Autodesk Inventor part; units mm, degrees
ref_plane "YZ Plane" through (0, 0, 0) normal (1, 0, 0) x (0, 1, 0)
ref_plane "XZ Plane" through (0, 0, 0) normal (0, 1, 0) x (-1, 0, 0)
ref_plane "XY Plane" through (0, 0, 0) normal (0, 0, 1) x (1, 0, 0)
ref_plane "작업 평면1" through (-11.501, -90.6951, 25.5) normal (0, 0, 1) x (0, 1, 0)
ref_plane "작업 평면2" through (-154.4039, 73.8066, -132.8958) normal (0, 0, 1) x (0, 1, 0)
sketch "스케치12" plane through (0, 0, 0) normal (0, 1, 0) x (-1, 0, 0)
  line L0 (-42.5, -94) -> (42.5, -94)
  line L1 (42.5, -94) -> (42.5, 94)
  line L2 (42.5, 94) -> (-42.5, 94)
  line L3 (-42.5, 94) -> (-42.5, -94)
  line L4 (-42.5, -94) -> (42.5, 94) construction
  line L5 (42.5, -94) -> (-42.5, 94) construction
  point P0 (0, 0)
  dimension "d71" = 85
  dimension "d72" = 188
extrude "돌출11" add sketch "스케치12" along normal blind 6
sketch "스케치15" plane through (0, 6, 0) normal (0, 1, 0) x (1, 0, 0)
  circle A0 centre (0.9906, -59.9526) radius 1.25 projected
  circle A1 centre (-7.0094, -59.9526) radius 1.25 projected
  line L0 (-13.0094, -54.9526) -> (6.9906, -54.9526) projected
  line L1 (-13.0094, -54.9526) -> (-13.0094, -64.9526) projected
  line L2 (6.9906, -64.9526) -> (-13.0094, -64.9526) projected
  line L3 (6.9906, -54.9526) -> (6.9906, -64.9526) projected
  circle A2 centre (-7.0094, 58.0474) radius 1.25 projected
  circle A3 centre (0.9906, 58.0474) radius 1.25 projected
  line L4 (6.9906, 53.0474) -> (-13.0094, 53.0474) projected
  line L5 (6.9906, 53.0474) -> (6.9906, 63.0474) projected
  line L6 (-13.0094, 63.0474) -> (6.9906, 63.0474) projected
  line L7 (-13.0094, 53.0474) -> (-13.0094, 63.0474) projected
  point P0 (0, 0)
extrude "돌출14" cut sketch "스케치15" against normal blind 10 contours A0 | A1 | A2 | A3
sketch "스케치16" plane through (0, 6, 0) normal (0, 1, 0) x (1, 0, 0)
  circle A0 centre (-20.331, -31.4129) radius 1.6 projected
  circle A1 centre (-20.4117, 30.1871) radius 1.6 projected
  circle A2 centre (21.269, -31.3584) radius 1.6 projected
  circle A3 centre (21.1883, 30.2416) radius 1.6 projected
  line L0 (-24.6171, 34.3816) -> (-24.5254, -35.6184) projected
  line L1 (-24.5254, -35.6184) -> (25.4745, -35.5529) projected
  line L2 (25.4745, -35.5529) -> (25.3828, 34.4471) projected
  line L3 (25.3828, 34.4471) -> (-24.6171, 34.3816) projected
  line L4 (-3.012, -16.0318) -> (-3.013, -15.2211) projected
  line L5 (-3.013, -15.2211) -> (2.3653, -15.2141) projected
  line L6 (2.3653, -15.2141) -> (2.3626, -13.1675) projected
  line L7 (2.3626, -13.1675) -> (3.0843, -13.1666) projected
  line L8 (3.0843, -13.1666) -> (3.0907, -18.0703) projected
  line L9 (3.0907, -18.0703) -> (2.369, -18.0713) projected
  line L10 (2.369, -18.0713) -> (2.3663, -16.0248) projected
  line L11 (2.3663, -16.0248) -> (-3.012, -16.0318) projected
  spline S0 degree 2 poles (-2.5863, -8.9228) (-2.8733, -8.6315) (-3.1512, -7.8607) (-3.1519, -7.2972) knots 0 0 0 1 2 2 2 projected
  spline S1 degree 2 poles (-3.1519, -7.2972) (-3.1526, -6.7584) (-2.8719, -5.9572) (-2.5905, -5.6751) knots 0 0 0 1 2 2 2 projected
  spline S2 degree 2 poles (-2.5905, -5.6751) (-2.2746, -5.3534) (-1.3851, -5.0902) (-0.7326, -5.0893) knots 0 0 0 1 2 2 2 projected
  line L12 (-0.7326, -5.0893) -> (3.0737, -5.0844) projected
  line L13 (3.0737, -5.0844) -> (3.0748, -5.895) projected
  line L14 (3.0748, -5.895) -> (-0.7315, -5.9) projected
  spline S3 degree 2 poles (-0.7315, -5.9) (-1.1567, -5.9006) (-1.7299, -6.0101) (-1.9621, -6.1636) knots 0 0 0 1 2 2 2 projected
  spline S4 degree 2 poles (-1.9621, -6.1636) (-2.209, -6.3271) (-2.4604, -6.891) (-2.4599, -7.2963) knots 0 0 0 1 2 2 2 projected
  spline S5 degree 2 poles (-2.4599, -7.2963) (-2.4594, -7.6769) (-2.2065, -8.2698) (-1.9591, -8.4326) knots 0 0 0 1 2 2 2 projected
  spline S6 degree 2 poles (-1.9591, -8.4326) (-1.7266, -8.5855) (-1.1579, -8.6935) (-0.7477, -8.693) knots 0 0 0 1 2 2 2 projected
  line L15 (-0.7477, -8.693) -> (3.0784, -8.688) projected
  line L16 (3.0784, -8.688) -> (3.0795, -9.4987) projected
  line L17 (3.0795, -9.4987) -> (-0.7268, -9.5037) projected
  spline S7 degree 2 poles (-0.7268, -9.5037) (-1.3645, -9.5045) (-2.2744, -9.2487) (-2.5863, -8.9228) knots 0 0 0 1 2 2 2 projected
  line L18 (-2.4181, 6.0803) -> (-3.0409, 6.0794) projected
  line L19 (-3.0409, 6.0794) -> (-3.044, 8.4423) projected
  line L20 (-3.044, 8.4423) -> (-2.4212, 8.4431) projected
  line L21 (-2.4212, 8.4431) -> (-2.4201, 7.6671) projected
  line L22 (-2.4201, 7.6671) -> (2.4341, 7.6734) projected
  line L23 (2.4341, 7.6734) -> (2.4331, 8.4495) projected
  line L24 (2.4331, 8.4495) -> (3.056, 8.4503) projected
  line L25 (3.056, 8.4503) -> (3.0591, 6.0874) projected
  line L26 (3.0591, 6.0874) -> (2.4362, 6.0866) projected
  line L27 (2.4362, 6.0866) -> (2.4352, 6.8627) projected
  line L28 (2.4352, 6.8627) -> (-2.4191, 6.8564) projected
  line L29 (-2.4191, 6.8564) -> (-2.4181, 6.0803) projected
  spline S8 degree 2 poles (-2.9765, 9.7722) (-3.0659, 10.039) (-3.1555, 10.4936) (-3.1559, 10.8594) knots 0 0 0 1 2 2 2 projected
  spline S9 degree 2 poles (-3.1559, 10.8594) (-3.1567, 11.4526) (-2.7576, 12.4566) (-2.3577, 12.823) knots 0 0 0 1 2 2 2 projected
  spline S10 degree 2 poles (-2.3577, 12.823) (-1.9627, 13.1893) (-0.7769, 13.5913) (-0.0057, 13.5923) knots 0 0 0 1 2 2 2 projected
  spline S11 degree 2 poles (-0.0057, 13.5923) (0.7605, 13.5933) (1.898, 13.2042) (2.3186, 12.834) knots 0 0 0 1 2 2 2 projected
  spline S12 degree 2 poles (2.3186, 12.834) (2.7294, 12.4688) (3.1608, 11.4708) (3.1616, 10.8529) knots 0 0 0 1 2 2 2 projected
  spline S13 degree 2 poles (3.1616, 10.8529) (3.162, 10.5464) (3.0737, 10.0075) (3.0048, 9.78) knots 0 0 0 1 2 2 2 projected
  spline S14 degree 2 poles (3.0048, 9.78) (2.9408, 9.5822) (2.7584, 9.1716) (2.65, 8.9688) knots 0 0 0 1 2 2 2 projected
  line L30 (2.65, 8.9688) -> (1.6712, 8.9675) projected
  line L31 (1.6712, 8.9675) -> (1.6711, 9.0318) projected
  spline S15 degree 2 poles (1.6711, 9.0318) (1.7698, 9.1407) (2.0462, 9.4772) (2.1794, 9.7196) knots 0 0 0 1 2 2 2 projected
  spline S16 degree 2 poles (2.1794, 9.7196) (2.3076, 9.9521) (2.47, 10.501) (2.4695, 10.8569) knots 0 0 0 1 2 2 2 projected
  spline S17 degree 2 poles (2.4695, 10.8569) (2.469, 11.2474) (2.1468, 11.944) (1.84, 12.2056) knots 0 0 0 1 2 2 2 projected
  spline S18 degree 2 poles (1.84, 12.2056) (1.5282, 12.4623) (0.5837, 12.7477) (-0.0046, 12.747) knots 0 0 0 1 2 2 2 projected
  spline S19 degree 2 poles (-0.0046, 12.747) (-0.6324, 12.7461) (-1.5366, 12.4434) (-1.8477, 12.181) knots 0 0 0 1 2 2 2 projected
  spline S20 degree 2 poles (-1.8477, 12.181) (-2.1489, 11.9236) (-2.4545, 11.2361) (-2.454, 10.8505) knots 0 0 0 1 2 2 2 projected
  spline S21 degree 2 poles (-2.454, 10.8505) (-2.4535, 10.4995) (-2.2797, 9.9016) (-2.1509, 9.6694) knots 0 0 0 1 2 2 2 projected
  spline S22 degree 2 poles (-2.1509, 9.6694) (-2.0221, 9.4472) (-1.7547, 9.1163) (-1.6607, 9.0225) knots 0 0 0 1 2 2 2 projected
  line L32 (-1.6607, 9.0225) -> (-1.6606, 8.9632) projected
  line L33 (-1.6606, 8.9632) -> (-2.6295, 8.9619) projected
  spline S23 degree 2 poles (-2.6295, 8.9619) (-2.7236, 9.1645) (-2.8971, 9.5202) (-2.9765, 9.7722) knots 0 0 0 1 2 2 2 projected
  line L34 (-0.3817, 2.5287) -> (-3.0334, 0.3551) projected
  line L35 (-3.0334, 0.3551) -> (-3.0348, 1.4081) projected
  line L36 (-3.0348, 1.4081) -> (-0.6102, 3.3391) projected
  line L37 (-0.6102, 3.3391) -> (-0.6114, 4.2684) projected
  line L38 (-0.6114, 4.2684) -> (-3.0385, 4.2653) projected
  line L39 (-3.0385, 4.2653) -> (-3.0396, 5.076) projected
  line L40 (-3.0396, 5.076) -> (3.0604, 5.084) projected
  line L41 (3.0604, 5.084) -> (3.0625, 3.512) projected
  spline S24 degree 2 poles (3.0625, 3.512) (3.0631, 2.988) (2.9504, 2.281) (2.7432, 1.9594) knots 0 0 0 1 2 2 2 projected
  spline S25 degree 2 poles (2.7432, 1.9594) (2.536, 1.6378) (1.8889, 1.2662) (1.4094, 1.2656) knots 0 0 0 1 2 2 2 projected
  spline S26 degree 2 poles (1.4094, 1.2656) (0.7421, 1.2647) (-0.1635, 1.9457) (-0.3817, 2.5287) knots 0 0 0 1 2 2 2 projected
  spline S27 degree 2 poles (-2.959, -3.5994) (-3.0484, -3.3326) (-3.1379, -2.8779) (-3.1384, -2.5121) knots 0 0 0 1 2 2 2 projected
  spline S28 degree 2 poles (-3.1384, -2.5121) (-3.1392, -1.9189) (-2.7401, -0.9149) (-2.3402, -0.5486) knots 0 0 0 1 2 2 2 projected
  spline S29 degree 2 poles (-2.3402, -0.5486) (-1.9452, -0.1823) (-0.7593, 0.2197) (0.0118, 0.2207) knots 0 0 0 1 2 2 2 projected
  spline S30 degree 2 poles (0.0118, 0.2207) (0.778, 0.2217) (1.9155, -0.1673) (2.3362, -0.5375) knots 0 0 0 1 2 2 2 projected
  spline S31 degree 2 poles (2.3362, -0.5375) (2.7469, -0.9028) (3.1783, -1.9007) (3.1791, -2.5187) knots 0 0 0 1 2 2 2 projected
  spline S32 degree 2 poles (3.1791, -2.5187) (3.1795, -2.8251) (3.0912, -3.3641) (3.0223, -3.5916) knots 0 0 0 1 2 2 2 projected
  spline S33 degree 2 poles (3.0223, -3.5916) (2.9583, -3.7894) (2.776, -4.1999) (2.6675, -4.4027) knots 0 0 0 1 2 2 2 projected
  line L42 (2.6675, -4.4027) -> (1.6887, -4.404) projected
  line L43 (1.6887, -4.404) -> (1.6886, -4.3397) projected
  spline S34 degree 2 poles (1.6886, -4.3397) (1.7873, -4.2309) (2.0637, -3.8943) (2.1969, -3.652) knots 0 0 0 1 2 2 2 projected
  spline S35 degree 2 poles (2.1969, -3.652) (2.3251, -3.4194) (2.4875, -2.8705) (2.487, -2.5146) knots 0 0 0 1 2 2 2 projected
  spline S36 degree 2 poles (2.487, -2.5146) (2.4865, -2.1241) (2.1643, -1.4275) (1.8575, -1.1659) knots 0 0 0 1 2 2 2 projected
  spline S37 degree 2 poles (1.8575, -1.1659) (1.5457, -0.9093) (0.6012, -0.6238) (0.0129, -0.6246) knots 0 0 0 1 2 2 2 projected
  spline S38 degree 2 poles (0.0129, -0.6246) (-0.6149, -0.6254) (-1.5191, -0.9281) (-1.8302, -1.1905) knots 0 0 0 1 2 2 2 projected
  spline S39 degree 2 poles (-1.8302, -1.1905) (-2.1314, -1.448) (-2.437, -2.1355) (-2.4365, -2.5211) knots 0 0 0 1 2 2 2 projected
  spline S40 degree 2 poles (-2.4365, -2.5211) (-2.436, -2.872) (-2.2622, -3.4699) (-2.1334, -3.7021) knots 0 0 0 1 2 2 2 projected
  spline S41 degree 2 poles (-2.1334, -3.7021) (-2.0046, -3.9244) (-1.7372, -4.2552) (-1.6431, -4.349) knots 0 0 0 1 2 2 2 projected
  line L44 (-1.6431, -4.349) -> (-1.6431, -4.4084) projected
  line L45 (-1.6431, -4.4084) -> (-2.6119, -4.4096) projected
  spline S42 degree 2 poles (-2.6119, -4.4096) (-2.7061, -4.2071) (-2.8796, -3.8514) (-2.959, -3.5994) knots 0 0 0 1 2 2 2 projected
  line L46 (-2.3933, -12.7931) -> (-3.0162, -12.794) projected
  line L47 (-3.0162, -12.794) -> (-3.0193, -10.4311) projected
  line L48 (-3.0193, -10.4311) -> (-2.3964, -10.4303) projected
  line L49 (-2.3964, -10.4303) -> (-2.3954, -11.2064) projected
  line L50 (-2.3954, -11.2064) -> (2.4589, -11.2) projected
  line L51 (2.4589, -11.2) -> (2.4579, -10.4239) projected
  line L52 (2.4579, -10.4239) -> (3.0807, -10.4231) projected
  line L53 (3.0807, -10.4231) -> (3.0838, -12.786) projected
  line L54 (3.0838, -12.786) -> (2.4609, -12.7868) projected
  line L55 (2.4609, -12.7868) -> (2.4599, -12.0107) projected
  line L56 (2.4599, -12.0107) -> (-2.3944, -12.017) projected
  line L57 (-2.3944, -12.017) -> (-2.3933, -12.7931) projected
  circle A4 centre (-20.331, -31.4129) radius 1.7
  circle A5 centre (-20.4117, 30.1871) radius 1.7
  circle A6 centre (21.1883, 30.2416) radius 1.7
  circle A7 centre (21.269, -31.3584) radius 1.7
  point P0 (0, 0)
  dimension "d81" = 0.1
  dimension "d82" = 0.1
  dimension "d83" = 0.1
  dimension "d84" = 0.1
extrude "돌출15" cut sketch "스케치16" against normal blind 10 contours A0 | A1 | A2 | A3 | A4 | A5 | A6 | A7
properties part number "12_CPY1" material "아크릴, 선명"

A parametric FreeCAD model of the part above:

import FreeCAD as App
import Part
import Sketcher
from FreeCAD import Vector

doc = App.newDocument("Part")
params = doc.addObject("Spreadsheet::Sheet", "Params")
for row, (alias, value) in enumerate([
    ("sketch1_width", "85 mm"),
    ("sketch1_height", "188 mm"),
    ("pad1_length", "6 mm"),
    ("sketch2_diameter", "2.5 mm"),
    ("pocket1_length", "10 mm"),
    ("sketch3_diameter", "3.4 mm"),
    ("pocket2_length", "10 mm"),
], start=1):
    params.set(f"A{row}", alias)
    params.set(f"B{row}", "=" + value)
    params.setAlias(f"B{row}", alias)

body = doc.addObject("PartDesign::Body", "Body")

sketch1 = doc.addObject("Sketcher::SketchObject", "Sketch")
body.addObject(sketch1)
sketch1.AttachmentSupport = (doc.XZ_Plane, [""])
sketch1.MapMode = "FlatFace"
sketch1.addGeometry([
    Part.LineSegment(Vector(42, 94, 0), Vector(42, -94, 0)),
    Part.LineSegment(Vector(42, -94, 0), Vector(-42, -94, 0)),
    Part.LineSegment(Vector(-42, -94, 0), Vector(-42, 94, 0)),
    Part.LineSegment(Vector(-42, 94, 0), Vector(42, 94, 0)),
], False)
sketch1.addConstraint([
    Sketcher.Constraint("Coincident", 0, 2, 1, 1),
    Sketcher.Constraint("Coincident", 1, 2, 2, 1),
    Sketcher.Constraint("Coincident", 2, 2, 3, 1),
    Sketcher.Constraint("Coincident", 3, 2, 0, 1),
    Sketcher.Constraint("Vertical", 0),
    Sketcher.Constraint("Horizontal", 1),
    Sketcher.Constraint("Vertical", 2),
    Sketcher.Constraint("Horizontal", 3),
    Sketcher.Constraint("Symmetric", 0, 2, 2, 2, -1, 1),
    Sketcher.Constraint("DistanceX", 1, 2, 1, 1, 85.0),
    Sketcher.Constraint("DistanceY", 0, 2, 0, 1, 188.0),
])
sketch1.setExpression("Constraints[9]", "Params.sketch1_width")
sketch1.setExpression("Constraints[10]", "Params.sketch1_height")
pad1 = doc.addObject("PartDesign::Pad", "Pad")
body.addObject(pad1)
pad1.Profile = sketch1
pad1.setExpression("Length", "Params.pad1_length")
pad1.Reversed = True

sketch2 = doc.addObject("Sketcher::SketchObject", "Sketch001")
body.addObject(sketch2)
sketch2.AttachmentSupport = (doc.XZ_Plane, [""])
sketch2.MapMode = "FlatFace"
sketch2.AttachmentOffset = App.Placement(Vector(0, 0, -6), App.Rotation())
sketch2.addGeometry([
    Part.Circle(Vector(1, 60, 0), Vector(0, 0, 1), 1.2),
    Part.Circle(Vector(-7, 60, 0), Vector(0, 0, 1), 1.2),
    Part.Circle(Vector(-7, -58, 0), Vector(0, 0, 1), 1.2),
    Part.Circle(Vector(1, -58, 0), Vector(0, 0, 1), 1.2),
], False)
sketch2.addConstraint([
    Sketcher.Constraint("Equal", 0, 1),
    Sketcher.Constraint("Equal", 1, 2),
    Sketcher.Constraint("Equal", 2, 3),
    Sketcher.Constraint("Horizontal", 0, 3, 1, 3),
    Sketcher.Constraint("Horizontal", 2, 3, 3, 3),
    Sketcher.Constraint("Vertical", 1, 3, 2, 3),
    Sketcher.Constraint("Vertical", 0, 3, 3, 3),
    Sketcher.Constraint("Diameter", 0, 2.5),
    Sketcher.Constraint("DistanceX", 1, 3, 0, 3, 8.0),
    Sketcher.Constraint("DistanceY", 2, 3, 1, 3, 118.0),
    Sketcher.Constraint("DistanceX", -1, 1, 0, 3, 0.9906),
    Sketcher.Constraint("DistanceY", -1, 1, 0, 3, 59.9526),
])
sketch2.setExpression("Constraints[7]", "Params.sketch2_diameter")
pocket1 = doc.addObject("PartDesign::Pocket", "Pocket")
body.addObject(pocket1)
pocket1.Profile = sketch2
pocket1.setExpression("Length", "Params.pocket1_length")
pocket1.Reversed = True

sketch3 = doc.addObject("Sketcher::SketchObject", "Sketch002")
body.addObject(sketch3)
sketch3.AttachmentSupport = (doc.XZ_Plane, [""])
sketch3.MapMode = "FlatFace"
sketch3.AttachmentOffset = App.Placement(Vector(0, 0, -6), App.Rotation())
sketch3.addGeometry([
    Part.Circle(Vector(-20.3, 31.4, 0), Vector(0, 0, 1), 1.7),
    Part.Circle(Vector(-20.4, -30.2, 0), Vector(0, 0, 1), 1.7),
    Part.Circle(Vector(21.3, 31.4, 0), Vector(0, 0, 1), 1.7),
    Part.Circle(Vector(21.2, -30.2, 0), Vector(0, 0, 1), 1.7),
], False)
sketch3.addConstraint([
    Sketcher.Constraint("Equal", 0, 1),
    Sketcher.Constraint("Equal", 1, 2),
    Sketcher.Constraint("Equal", 2, 3),
    Sketcher.Constraint("Diameter", 0, 3.4),
    Sketcher.Constraint("DistanceY", 1, 3, 0, 3, 61.6),
    Sketcher.Constraint("DistanceX", 0, 3, 2, 3, 41.6),
    Sketcher.Constraint("DistanceX", 1, 3, 3, 3, 41.6),
    Sketcher.Constraint("DistanceY", 3, 3, 2, 3, 61.6),
    Sketcher.Constraint("DistanceX", 0, 3, -1, 1, 20.331),
    Sketcher.Constraint("DistanceY", -1, 1, 0, 3, 31.413),
    Sketcher.Constraint("DistanceX", 1, 3, -1, 1, 20.4117),
    Sketcher.Constraint("DistanceY", -1, 1, 2, 3, 31.3584),
])
sketch3.setExpression("Constraints[3]", "Params.sketch3_diameter")
pocket2 = doc.addObject("PartDesign::Pocket", "Pocket001")
body.addObject(pocket2)
pocket2.Profile = sketch3
pocket2.setExpression("Length", "Params.pocket2_length")
pocket2.Reversed = True

doc.recompute()
